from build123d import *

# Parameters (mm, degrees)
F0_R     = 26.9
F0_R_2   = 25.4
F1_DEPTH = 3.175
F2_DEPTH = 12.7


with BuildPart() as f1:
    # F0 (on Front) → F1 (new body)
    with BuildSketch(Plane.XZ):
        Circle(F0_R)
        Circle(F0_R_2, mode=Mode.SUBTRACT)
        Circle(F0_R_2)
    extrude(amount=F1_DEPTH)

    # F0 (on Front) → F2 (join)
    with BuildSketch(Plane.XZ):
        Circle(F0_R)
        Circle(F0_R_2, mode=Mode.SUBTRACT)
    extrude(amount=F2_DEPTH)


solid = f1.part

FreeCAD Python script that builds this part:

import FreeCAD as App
import Part
import Sketcher
from FreeCAD import Vector
Q = App.Units.Quantity

doc = App.newDocument("Part")
body = doc.addObject("PartDesign::Body", "Body")

sketch1 = body.newObject("Sketcher::SketchObject", "Sketch")
sketch1.AttachmentSupport = (doc.getObject("XZ_Plane"), [""])
sketch1.MapMode = "FlatFace"
sketch1.addGeometry(Part.Circle(Vector(0, 0, 0), Vector(0, 0, 1), 26.9), False)
sketch1.addConstraint([
    Sketcher.Constraint("Coincident", 0, 3, -1, 1),
    Sketcher.Constraint("Diameter", 0, Q("53.8 mm")),
])
pad1 = body.newObject("PartDesign::Pad", "Pad")
pad1.Profile = sketch1
pad1.Length = Q("0.125 in")

sketch2 = body.newObject("Sketcher::SketchObject", "Sketch001")
sketch2.AttachmentSupport = (doc.getObject("XZ_Plane"), [""])
sketch2.MapMode = "FlatFace"
sketch2.addGeometry([
    Part.Circle(Vector(0, 0, 0), Vector(0, 0, 1), 26.9),
    Part.Circle(Vector(0, 0, 0), Vector(0, 0, 1), 25.4),
], False)
sketch2.addConstraint([
    Sketcher.Constraint("Coincident", 0, 3, -1, 1),
    Sketcher.Constraint("Coincident", 1, 3, -1, 1),
    Sketcher.Constraint("Diameter", 1, Q("2 in")),
    Sketcher.Constraint("Diameter", 0, Q("53.8 mm")),
])
pad2 = body.newObject("PartDesign::Pad", "Pad001")
pad2.Profile = sketch2
pad2.Length = Q("0.5 in")

doc.recompute()
